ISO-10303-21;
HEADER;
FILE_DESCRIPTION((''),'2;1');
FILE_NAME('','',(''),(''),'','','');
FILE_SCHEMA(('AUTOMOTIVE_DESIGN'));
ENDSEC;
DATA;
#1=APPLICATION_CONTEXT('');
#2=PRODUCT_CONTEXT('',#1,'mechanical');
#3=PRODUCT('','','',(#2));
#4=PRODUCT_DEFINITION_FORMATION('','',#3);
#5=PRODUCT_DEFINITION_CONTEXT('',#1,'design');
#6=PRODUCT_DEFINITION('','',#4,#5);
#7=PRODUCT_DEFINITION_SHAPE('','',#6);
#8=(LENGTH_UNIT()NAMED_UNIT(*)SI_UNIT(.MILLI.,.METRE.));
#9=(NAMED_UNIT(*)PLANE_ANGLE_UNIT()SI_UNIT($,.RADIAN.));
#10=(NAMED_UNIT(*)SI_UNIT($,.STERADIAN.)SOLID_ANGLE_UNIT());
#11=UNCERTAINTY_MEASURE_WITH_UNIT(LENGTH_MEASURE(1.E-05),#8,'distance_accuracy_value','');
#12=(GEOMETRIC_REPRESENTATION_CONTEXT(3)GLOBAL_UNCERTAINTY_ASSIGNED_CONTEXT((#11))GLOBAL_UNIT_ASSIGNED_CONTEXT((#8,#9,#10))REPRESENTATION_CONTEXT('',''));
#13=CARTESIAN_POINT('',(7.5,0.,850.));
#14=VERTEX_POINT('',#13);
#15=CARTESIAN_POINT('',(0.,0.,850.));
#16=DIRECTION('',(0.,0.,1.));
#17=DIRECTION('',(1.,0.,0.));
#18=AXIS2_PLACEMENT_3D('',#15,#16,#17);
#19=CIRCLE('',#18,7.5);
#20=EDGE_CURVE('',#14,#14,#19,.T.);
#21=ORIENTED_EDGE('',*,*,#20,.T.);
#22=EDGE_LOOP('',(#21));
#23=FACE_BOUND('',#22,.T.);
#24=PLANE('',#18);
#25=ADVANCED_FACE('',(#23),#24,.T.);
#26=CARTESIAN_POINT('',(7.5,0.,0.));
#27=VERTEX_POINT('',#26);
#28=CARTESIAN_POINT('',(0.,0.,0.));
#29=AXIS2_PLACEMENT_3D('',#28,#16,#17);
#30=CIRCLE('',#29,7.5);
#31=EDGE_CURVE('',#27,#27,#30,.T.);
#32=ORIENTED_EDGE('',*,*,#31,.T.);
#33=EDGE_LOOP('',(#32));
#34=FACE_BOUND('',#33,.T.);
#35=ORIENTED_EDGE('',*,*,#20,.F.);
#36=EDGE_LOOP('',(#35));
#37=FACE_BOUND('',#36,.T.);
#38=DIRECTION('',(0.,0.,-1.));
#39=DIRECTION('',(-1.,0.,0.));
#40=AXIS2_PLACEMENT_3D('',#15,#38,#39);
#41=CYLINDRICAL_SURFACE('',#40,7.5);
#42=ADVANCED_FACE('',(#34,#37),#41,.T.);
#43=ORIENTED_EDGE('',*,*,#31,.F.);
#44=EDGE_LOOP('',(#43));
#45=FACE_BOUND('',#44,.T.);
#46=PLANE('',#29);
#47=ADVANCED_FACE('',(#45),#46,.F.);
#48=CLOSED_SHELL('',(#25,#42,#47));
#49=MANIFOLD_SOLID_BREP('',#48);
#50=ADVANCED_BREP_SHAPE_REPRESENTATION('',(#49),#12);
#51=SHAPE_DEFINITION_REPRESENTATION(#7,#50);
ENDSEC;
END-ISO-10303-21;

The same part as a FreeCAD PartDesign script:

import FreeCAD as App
import Part
import Sketcher
from FreeCAD import Vector

doc = App.newDocument("Part")
body = doc.addObject("PartDesign::Body", "Body")

# Sketch on XY plane
sketch1 = body.newObject("Sketcher::SketchObject", "Sketch")
sketch1.AttachmentSupport = (doc.getObject("XY_Plane"), [""])
sketch1.MapMode = "FlatFace"
sketch1.addGeometry(Part.Circle(Vector(0, 0, 0), Vector(0, 0, 1), 8), False)
sketch1.addConstraint([
    Sketcher.Constraint("Coincident", 0, 3, -1, 1),
    Sketcher.Constraint("Diameter", 0, 15.0),
])
pad1 = body.newObject("PartDesign::Pad", "Pad")
pad1.Profile = sketch1
pad1.Length = 850

doc.recompute()
